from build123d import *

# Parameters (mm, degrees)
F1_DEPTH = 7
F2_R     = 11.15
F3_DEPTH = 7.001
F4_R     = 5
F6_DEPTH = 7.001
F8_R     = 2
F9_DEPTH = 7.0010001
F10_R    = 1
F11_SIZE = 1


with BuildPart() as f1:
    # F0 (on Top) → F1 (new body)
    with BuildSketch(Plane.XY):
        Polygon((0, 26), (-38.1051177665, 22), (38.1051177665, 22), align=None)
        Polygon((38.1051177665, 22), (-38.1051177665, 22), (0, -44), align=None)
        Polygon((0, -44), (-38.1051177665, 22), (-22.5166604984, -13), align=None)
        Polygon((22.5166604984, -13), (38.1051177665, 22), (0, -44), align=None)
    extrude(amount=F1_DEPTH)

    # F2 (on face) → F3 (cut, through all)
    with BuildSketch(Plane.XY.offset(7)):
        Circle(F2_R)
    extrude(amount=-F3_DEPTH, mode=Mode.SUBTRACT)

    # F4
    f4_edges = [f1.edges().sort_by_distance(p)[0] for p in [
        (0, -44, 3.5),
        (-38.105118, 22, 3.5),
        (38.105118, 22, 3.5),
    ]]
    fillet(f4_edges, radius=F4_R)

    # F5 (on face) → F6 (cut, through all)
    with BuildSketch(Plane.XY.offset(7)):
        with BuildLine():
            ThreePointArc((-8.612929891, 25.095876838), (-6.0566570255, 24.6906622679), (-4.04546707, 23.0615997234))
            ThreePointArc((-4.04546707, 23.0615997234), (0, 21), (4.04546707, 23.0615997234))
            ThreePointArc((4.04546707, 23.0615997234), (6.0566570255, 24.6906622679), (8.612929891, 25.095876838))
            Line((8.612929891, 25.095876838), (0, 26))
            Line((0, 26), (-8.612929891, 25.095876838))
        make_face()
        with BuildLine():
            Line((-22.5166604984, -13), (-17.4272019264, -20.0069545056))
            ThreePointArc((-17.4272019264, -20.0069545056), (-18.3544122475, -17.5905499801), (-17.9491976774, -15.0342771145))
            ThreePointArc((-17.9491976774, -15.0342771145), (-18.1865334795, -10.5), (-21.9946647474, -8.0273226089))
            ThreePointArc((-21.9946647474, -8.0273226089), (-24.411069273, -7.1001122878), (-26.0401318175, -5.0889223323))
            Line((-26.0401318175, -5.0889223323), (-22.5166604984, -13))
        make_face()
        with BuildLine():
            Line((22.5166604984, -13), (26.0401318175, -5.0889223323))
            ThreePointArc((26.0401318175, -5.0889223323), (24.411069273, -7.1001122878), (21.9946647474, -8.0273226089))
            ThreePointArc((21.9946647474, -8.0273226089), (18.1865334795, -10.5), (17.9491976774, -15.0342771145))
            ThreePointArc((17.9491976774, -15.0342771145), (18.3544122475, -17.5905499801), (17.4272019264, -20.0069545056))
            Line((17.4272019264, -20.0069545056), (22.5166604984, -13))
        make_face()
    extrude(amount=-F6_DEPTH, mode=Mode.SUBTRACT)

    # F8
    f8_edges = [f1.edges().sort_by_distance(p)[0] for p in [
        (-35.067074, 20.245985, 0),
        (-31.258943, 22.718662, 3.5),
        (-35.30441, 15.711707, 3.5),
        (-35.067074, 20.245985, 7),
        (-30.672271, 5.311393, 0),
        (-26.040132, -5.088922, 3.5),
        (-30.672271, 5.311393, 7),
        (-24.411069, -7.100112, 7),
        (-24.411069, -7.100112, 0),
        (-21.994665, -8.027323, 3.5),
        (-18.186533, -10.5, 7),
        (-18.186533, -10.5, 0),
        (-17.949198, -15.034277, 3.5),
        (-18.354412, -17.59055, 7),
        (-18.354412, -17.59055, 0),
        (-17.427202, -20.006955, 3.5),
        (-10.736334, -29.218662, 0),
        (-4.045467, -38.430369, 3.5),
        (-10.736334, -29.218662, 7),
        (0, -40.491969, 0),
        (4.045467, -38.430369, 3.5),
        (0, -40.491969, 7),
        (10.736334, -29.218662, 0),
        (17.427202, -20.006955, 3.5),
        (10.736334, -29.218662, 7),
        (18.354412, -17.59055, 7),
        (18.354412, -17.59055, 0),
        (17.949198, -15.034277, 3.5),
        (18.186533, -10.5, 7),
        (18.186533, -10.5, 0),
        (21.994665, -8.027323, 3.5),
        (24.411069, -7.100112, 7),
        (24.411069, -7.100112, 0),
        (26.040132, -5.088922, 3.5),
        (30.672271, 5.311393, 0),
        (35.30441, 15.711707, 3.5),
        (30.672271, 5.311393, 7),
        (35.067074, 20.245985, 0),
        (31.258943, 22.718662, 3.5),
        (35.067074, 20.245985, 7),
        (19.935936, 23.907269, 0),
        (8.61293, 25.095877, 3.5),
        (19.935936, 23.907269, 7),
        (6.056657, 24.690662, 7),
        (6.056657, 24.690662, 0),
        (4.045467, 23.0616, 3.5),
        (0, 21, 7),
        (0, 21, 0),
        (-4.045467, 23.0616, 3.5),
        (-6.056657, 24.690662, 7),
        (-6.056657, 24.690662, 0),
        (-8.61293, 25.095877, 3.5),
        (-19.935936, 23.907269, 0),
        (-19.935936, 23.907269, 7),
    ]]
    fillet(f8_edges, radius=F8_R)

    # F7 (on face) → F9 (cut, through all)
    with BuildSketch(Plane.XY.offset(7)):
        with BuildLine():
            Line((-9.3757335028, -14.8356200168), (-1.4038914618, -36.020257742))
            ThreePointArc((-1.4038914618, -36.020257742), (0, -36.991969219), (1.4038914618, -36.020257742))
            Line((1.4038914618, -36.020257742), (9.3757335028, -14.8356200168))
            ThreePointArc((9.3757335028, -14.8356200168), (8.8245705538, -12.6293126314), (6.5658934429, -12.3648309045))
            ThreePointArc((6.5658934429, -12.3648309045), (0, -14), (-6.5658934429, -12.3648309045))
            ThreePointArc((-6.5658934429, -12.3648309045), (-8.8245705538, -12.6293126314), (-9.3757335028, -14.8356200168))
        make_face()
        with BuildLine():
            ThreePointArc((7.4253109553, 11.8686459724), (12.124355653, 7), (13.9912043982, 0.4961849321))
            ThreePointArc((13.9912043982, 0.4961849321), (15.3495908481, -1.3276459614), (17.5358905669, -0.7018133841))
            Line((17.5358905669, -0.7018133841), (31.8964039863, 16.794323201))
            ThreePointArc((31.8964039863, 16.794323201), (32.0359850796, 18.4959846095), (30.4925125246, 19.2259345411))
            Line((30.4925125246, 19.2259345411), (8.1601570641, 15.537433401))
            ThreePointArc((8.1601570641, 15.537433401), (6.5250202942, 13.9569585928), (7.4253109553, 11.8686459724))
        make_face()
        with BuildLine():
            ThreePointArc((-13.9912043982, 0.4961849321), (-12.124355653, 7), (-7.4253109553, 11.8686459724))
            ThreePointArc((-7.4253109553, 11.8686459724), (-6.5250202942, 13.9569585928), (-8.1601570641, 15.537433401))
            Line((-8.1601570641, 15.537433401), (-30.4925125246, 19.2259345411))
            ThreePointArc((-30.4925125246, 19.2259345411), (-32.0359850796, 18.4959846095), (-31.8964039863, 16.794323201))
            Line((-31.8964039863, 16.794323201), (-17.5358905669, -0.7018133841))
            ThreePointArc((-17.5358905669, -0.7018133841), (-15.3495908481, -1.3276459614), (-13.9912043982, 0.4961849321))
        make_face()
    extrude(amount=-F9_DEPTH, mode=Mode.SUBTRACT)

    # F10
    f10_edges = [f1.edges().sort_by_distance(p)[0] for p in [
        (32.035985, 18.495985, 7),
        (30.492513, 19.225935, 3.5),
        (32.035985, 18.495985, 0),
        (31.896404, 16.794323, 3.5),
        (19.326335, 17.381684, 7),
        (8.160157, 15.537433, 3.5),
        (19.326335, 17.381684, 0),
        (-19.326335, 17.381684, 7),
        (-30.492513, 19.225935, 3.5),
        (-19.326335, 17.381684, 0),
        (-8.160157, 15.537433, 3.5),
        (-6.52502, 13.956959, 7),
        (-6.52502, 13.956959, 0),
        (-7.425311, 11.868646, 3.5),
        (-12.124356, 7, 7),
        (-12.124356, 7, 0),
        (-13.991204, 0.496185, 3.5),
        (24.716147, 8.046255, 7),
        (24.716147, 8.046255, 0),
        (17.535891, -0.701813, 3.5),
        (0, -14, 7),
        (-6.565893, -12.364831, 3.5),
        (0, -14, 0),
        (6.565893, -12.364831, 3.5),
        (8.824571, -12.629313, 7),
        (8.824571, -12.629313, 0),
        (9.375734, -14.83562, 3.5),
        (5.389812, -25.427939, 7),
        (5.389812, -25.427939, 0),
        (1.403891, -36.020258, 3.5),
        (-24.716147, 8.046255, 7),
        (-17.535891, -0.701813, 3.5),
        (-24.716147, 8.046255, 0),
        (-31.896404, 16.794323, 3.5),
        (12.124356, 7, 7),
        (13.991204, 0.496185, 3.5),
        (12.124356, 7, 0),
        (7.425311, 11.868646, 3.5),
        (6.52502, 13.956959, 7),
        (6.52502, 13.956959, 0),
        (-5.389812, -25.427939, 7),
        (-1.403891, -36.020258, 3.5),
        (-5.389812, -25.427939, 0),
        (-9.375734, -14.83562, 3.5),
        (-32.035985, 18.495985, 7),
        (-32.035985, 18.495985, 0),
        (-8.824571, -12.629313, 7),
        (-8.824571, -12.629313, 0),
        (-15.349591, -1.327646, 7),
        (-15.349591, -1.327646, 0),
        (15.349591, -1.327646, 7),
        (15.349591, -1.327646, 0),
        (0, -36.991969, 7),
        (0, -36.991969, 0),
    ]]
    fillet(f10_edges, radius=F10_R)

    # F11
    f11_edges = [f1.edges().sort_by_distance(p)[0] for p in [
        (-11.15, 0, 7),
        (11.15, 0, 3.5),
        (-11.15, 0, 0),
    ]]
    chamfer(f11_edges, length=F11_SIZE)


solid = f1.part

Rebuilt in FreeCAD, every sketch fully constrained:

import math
import FreeCAD as App
import Part
import Sketcher
Q = App.Units.Quantity


def edges_at(feature, points):
    """Names of the edges that pass closest to the given points."""
    edges = feature.Shape.Edges
    near = lambda p: min(range(len(edges)), key=lambda i: edges[i].distToShape(Part.Vertex(*p))[0])
    return sorted({f"Edge{near(p) + 1}" for p in points})


def add_polygon(sketch, points):
    """Adds a closed chain of lines whose ends are joined by coincident constraints."""
    first, n = sketch.GeometryCount, len(points)
    for a, b in zip(points, points[1:] + points[:1]):
        sketch.addGeometry(Part.LineSegment(App.Vector(*a, 0), App.Vector(*b, 0)), False)
    for i in range(n):
        sketch.addConstraint(Sketcher.Constraint("Coincident", first + i, 2, first + (i + 1) % n, 1))

doc = App.newDocument("Part")
body = doc.addObject("PartDesign::Body", "Body")

sketch1 = body.newObject("Sketcher::SketchObject", "Sketch")
sketch1.AttachmentSupport = (doc.getObject("XY_Plane"), [""])
sketch1.MapMode = "FlatFace"
add_polygon(sketch1, [(0, 26), (-38, 22), (-23, -13), (0, -44), (23, -13), (38, 22)])
sketch1.addConstraint(Sketcher.Constraint("Symmetric", 1, 2, 3, 2, -2))
sketch1.addConstraint(Sketcher.Constraint("Symmetric", 0, 2, 4, 2, -2))
sketch1.addConstraint(Sketcher.Constraint("PointOnObject", 2, 2, -2))
sketch1.addConstraint(Sketcher.Constraint("PointOnObject", 5, 2, -2))
sketch1.addConstraint(Sketcher.Constraint("Equal", 0, 1))
sketch1.addConstraint(Sketcher.Constraint("Equal", 1, 2))
sketch1.addConstraint(Sketcher.Constraint("DistanceY", -1, 1, 0, 2, Q("22 mm")))
sketch1.addConstraint(Sketcher.Constraint("DistanceY", 1, 2, -1, 1, Q("13 mm")))
sketch1.addConstraint(Sketcher.Constraint("DistanceY", 2, 2, -1, 1, Q("44 mm")))
sketch1.addConstraint(Sketcher.Constraint("DistanceY", -1, 1, 5, 2, Q("26 mm")))
pad1 = body.newObject("PartDesign::Pad", "Pad")
pad1.Profile = sketch1
pad1.Length = 7

sketch2 = body.newObject("Sketcher::SketchObject", "Sketch001")
sketch2.AttachmentSupport = (doc.getObject("XY_Plane"), [""])
sketch2.MapMode = "FlatFace"
sketch2.AttachmentOffset = App.Placement(App.Vector(0, 0, 7), App.Rotation())
sketch2.addGeometry(Part.Circle(App.Vector(0, 0, 0), App.Vector(0, 0, 1), 11), False)
sketch2.addConstraint(Sketcher.Constraint("Coincident", 0, 3, -1, 1))
sketch2.addConstraint(Sketcher.Constraint("Diameter", 0, Q("22.3 mm")))
pocket1 = body.newObject("PartDesign::Pocket", "Pocket")
pocket1.Profile = sketch2
pocket1.Type = "ThroughAll"
doc.recompute()

fillet = body.newObject("PartDesign::Fillet", "Fillet")
fillet.Base = (pocket1, edges_at(pocket1, [(0, -44, 3.5), (-38.105, 22, 3.5), (38.105, 22, 3.5)]))
fillet.Radius = 5

sketch3 = body.newObject("Sketcher::SketchObject", "Sketch002")
sketch3.AttachmentSupport = (doc.getObject("XY_Plane"), [""])
sketch3.MapMode = "FlatFace"
sketch3.AttachmentOffset = App.Placement(App.Vector(0, 0, 7), App.Rotation())
sketch3.addGeometry(Part.ArcOfCircle(Part.Circle(App.Vector(-8.1, 20.1, 0), App.Vector(0, 0, 1), 5), math.radians(36), math.radians(96)), False)
sketch3.addGeometry(Part.ArcOfCircle(Part.Circle(App.Vector(0, 26, 0), App.Vector(0, 0, 1), 5), math.radians(-144), math.radians(-36)), False)
sketch3.addGeometry(Part.ArcOfCircle(Part.Circle(App.Vector(8.1, 20.1, 0), App.Vector(0, 0, 1), 5), math.radians(84), math.radians(144)), False)
sketch3.addGeometry(Part.LineSegment(App.Vector(8.6, 25.1, 0), App.Vector(0, 26, 0)), False)
sketch3.addGeometry(Part.LineSegment(App.Vector(0, 26, 0), App.Vector(-8.6, 25.1, 0)), False)
sketch3.addGeometry(Part.LineSegment(App.Vector(-22.5, -13, 0), App.Vector(-17.4, -20, 0)), False)
sketch3.addGeometry(Part.ArcOfCircle(Part.Circle(App.Vector(-13.4, -17.1, 0), App.Vector(0, 0, 1), 5), math.radians(156), math.radians(216)), False)
sketch3.addGeometry(Part.ArcOfCircle(Part.Circle(App.Vector(-22.5, -13, 0), App.Vector(0, 0, 1), 5), math.radians(-24), math.radians(84)), False)
sketch3.addGeometry(Part.ArcOfCircle(Part.Circle(App.Vector(-21.5, -3.1, 0), App.Vector(0, 0, 1), 5), math.radians(-156), math.radians(-96)), False)
sketch3.addGeometry(Part.LineSegment(App.Vector(-26, -5.1, 0), App.Vector(-22.5, -13, 0)), False)
sketch3.addGeometry(Part.LineSegment(App.Vector(22.5, -13, 0), App.Vector(26, -5.1, 0)), False)
sketch3.addGeometry(Part.ArcOfCircle(Part.Circle(App.Vector(21.5, -3.1, 0), App.Vector(0, 0, 1), 5), math.radians(-84), math.radians(-24)), False)
sketch3.addGeometry(Part.ArcOfCircle(Part.Circle(App.Vector(22.5, -13, 0), App.Vector(0, 0, 1), 5), math.radians(96), math.radians(204)), False)
sketch3.addGeometry(Part.ArcOfCircle(Part.Circle(App.Vector(13.4, -17.1, 0), App.Vector(0, 0, 1), 5), math.radians(-36), math.radians(24)), False)
sketch3.addGeometry(Part.LineSegment(App.Vector(17.4, -20, 0), App.Vector(22.5, -13, 0)), False)
sketch3.addConstraint(Sketcher.Constraint("Tangent", 0, 1, 1, 1))
sketch3.addConstraint(Sketcher.Constraint("Tangent", 1, 2, 2, 2))
sketch3.addConstraint(Sketcher.Constraint("Tangent", 2, 1, 3, 1))
sketch3.addConstraint(Sketcher.Constraint("Coincident", 3, 2, 4, 1))
sketch3.addConstraint(Sketcher.Constraint("Tangent", 4, 2, 0, 2))
sketch3.addConstraint(Sketcher.Constraint("Tangent", 5, 2, 6, 2))
sketch3.addConstraint(Sketcher.Constraint("Tangent", 6, 1, 7, 1))
sketch3.addConstraint(Sketcher.Constraint("Tangent", 7, 2, 8, 2))
sketch3.addConstraint(Sketcher.Constraint("Tangent", 8, 1, 9, 1))
sketch3.addConstraint(Sketcher.Constraint("Coincident", 9, 2, 5, 1))
sketch3.addConstraint(Sketcher.Constraint("Tangent", 10, 2, 11, 2))
sketch3.addConstraint(Sketcher.Constraint("Tangent", 11, 1, 12, 1))
sketch3.addConstraint(Sketcher.Constraint("Tangent", 12, 2, 13, 2))
sketch3.addConstraint(Sketcher.Constraint("Tangent", 13, 1, 14, 1))
sketch3.addConstraint(Sketcher.Constraint("Coincident", 14, 2, 10, 1))
sketch3.addConstraint(Sketcher.Constraint("Coincident", 3, 2, 1, 3))
sketch3.addConstraint(Sketcher.Constraint("Coincident", 9, 2, 7, 3))
sketch3.addConstraint(Sketcher.Constraint("Coincident", 14, 2, 12, 3))
sketch3.addConstraint(Sketcher.Constraint("Equal", 0, 1))
sketch3.addConstraint(Sketcher.Constraint("Equal", 1, 2))
sketch3.addConstraint(Sketcher.Constraint("Equal", 2, 6))
sketch3.addConstraint(Sketcher.Constraint("Equal", 6, 7))
sketch3.addConstraint(Sketcher.Constraint("Equal", 7, 8))
sketch3.addConstraint(Sketcher.Constraint("Equal", 8, 11))
sketch3.addConstraint(Sketcher.Constraint("Equal", 11, 12))
sketch3.addConstraint(Sketcher.Constraint("Equal", 12, 13))
sketch3.addConstraint(Sketcher.Constraint("Symmetric", 0, 3, 2, 3, -2))
sketch3.addConstraint(Sketcher.Constraint("Symmetric", 8, 3, 11, 3, -2))
sketch3.addConstraint(Sketcher.Constraint("Symmetric", 6, 3, 13, 3, -2))
sketch3.addConstraint(Sketcher.Constraint("Radius", 0, Q("5 mm")))
sketch3.addConstraint(Sketcher.Constraint("DistanceY", -1, 1, 1, 3, Q("26 mm")))
sketch3.addConstraint(Sketcher.Constraint("DistanceY", 7, 3, -1, 1, Q("13 mm")))
sketch3.addConstraint(Sketcher.Constraint("DistanceY", -1, 1, 0, 3, Q("20.123199 mm")))
sketch3.addConstraint(Sketcher.Constraint("DistanceX", 5, 2, -1, 1, Q("17.427202 mm")))
sketch3.addConstraint(Sketcher.Constraint("DistanceX", 6, 3, 0, 3, Q("5.290801 mm")))
sketch3.addConstraint(Sketcher.Constraint("DistanceX", 8, 3, 0, 1, Q("17.427202 mm")))
pocket2 = body.newObject("PartDesign::Pocket", "Pocket001")
pocket2.Profile = sketch3
pocket2.Type = "ThroughAll"
doc.recompute()

fillet2 = body.newObject("PartDesign::Fillet", "Fillet001")
fillet2.Base = (pocket2, edges_at(pocket2, [
    (-35.067, 20.246, 0),
    (-31.259, 22.719, 3.5),
    (-35.304, 15.712, 3.5),
    (-35.067, 20.246, 7),
    (-30.672, 5.311, 0),
    (-26.04, -5.089, 3.5),
    (-30.672, 5.311, 7),
    (-24.411, -7.1, 7),
    (-24.411, -7.1, 0),
    (-21.995, -8.027, 3.5),
    (-18.187, -10.5, 7),
    (-18.187, -10.5, 0),
    (-17.949, -15.034, 3.5),
    (-18.354, -17.591, 7),
    (-18.354, -17.591, 0),
    (-17.427, -20.007, 3.5),
    (-10.736, -29.219, 0),
    (-4.045, -38.43, 3.5),
    (-10.736, -29.219, 7),
    (0, -40.492, 0),
    (4.045, -38.43, 3.5),
    (0, -40.492, 7),
    (10.736, -29.219, 0),
    (17.427, -20.007, 3.5),
    (10.736, -29.219, 7),
    (18.354, -17.591, 7),
    (18.354, -17.591, 0),
    (17.949, -15.034, 3.5),
    (18.187, -10.5, 7),
    (18.187, -10.5, 0),
    (21.995, -8.027, 3.5),
    (24.411, -7.1, 7),
    (24.411, -7.1, 0),
    (26.04, -5.089, 3.5),
    (30.672, 5.311, 0),
    (35.304, 15.712, 3.5),
    (30.672, 5.311, 7),
    (35.067, 20.246, 0),
    (31.259, 22.719, 3.5),
    (35.067, 20.246, 7),
    (19.936, 23.907, 0),
    (8.613, 25.096, 3.5),
    (19.936, 23.907, 7),
    (6.057, 24.691, 7),
    (6.057, 24.691, 0),
    (4.045, 23.062, 3.5),
    (0, 21, 7),
    (0, 21, 0),
    (-4.045, 23.062, 3.5),
    (-6.057, 24.691, 7),
    (-6.057, 24.691, 0),
    (-8.613, 25.096, 3.5),
    (-19.936, 23.907, 0),
    (-19.936, 23.907, 7),
]))
fillet2.Radius = 2

sketch4 = body.newObject("Sketcher::SketchObject", "Sketch003")
sketch4.AttachmentSupport = (doc.getObject("XY_Plane"), [""])
sketch4.MapMode = "FlatFace"
sketch4.AttachmentOffset = App.Placement(App.Vector(0, 0, 7), App.Rotation())
sketch4.addGeometry(Part.LineSegment(App.Vector(-9.4, -14.8, 0), App.Vector(-1.4, -36, 0)), False)
sketch4.addGeometry(Part.ArcOfCircle(Part.Circle(App.Vector(0, -35.5, 0), App.Vector(0, 0, 1), 1.5), math.radians(-159), math.radians(-21)), False)
sketch4.addGeometry(Part.LineSegment(App.Vector(1.4, -36, 0), App.Vector(9.4, -14.8, 0)), False)
sketch4.addGeometry(Part.ArcOfCircle(Part.Circle(App.Vector(7.5, -14.1, 0), App.Vector(0, 0, 1), 2), math.radians(-21), math.radians(118)), False)
sketch4.addGeometry(Part.ArcOfCircle(Part.Circle(App.Vector(0, 0, 0), App.Vector(0, 0, 1), 14), math.radians(-118), math.radians(-62)), False)
sketch4.addGeometry(Part.ArcOfCircle(Part.Circle(App.Vector(-7.5, -14.1, 0), App.Vector(0, 0, 1), 2), math.radians(62), math.radians(201)), False)
sketch4.addGeometry(Part.ArcOfCircle(Part.Circle(App.Vector(0, 0, 0), App.Vector(0, 0, 1), 14), math.radians(2), math.radians(58)), False)
sketch4.addGeometry(Part.ArcOfCircle(Part.Circle(App.Vector(16, 0.6, 0), App.Vector(0, 0, 1), 2), math.radians(-178), math.radians(-39)), False)
sketch4.addGeometry(Part.LineSegment(App.Vector(17.5, -0.7, 0), App.Vector(31.9, 16.8, 0)), False)
sketch4.addGeometry(Part.ArcOfCircle(Part.Circle(App.Vector(30.7, 17.7, 0), App.Vector(0, 0, 1), 1.5), math.radians(-39), math.radians(99)), False)
sketch4.addGeometry(Part.LineSegment(App.Vector(30.5, 19.2, 0), App.Vector(8.2, 15.5, 0)), False)
sketch4.addGeometry(Part.ArcOfCircle(Part.Circle(App.Vector(8.5, 13.6, 0), App.Vector(0, 0, 1), 2), math.radians(99), math.radians(238)), False)
sketch4.addGeometry(Part.ArcOfCircle(Part.Circle(App.Vector(0, 0, 0), App.Vector(0, 0, 1), 14), math.radians(122), math.radians(178)), False)
sketch4.addGeometry(Part.ArcOfCircle(Part.Circle(App.Vector(-8.5, 13.6, 0), App.Vector(0, 0, 1), 2), math.radians(-58), math.radians(81)), False)
sketch4.addGeometry(Part.LineSegment(App.Vector(-8.2, 15.5, 0), App.Vector(-30.5, 19.2, 0)), False)
sketch4.addGeometry(Part.ArcOfCircle(Part.Circle(App.Vector(-30.7, 17.7, 0), App.Vector(0, 0, 1), 1.5), math.radians(81), math.radians(219)), False)
sketch4.addGeometry(Part.LineSegment(App.Vector(-31.9, 16.8, 0), App.Vector(-17.5, -0.7, 0)), False)
sketch4.addGeometry(Part.ArcOfCircle(Part.Circle(App.Vector(-16, 0.6, 0), App.Vector(0, 0, 1), 2), math.radians(-141), math.radians(-2)), False)
sketch4.addConstraint(Sketcher.Constraint("Tangent", 0, 2, 1, 1))
sketch4.addConstraint(Sketcher.Constraint("Tangent", 1, 2, 2, 1))
sketch4.addConstraint(Sketcher.Constraint("Tangent", 2, 2, 3, 1))
sketch4.addConstraint(Sketcher.Constraint("Tangent", 3, 2, 4, 2))
sketch4.addConstraint(Sketcher.Constraint("Tangent", 4, 1, 5, 1))
sketch4.addConstraint(Sketcher.Constraint("Tangent", 5, 2, 0, 1))
sketch4.addConstraint(Sketcher.Constraint("Tangent", 6, 1, 7, 1))
sketch4.addConstraint(Sketcher.Constraint("Tangent", 7, 2, 8, 1))
sketch4.addConstraint(Sketcher.Constraint("Tangent", 8, 2, 9, 1))
sketch4.addConstraint(Sketcher.Constraint("Tangent", 9, 2, 10, 1))
sketch4.addConstraint(Sketcher.Constraint("Tangent", 10, 2, 11, 1))
sketch4.addConstraint(Sketcher.Constraint("Tangent", 11, 2, 6, 2))
sketch4.addConstraint(Sketcher.Constraint("Tangent", 12, 1, 13, 1))
sketch4.addConstraint(Sketcher.Constraint("Tangent", 13, 2, 14, 1))
sketch4.addConstraint(Sketcher.Constraint("Tangent", 14, 2, 15, 1))
sketch4.addConstraint(Sketcher.Constraint("Tangent", 15, 2, 16, 1))
sketch4.addConstraint(Sketcher.Constraint("Tangent", 16, 2, 17, 1))
sketch4.addConstraint(Sketcher.Constraint("Tangent", 17, 2, 12, 2))
sketch4.addConstraint(Sketcher.Constraint("Coincident", 4, 3, -1, 1))
sketch4.addConstraint(Sketcher.Constraint("Coincident", 6, 3, -1, 1))
sketch4.addConstraint(Sketcher.Constraint("Coincident", 12, 3, -1, 1))
sketch4.addConstraint(Sketcher.Constraint("Equal", 3, 5))
sketch4.addConstraint(Sketcher.Constraint("Equal", 4, 6))
sketch4.addConstraint(Sketcher.Constraint("Equal", 5, 7))
sketch4.addConstraint(Sketcher.Constraint("Equal", 1, 9))
sketch4.addConstraint(Sketcher.Constraint("Equal", 7, 11))
sketch4.addConstraint(Sketcher.Constraint("Equal", 6, 12))
sketch4.addConstraint(Sketcher.Constraint("Equal", 11, 13))
sketch4.addConstraint(Sketcher.Constraint("Equal", 9, 15))
sketch4.addConstraint(Sketcher.Constraint("Equal", 13, 17))
sketch4.addConstraint(Sketcher.Constraint("Symmetric", 9, 3, 15, 3, -2))
sketch4.addConstraint(Sketcher.Constraint("Symmetric", 0, 2, 1, 2, -2))
sketch4.addConstraint(Sketcher.Constraint("Horizontal", 11, 3, 13, 3))
sketch4.addConstraint(Sketcher.Constraint("Horizontal", 7, 3, 17, 3))
sketch4.addConstraint(Sketcher.Constraint("Equal", 2, 8))
sketch4.addConstraint(Sketcher.Constraint("Equal", 8, 10))
sketch4.addConstraint(Sketcher.Constraint("Radius", 3, Q("2 mm")))
sketch4.addConstraint(Sketcher.Constraint("Radius", 4, Q("14 mm")))
sketch4.addConstraint(Sketcher.Constraint("Radius", 1, Q("1.5 mm")))
sketch4.addConstraint(Sketcher.Constraint("DistanceX", 7, 3, 9, 3, Q("14.746999 mm")))
sketch4.addConstraint(Sketcher.Constraint("DistanceY", 7, 2, 6, 1, Q("1.197998 mm")))
sketch4.addConstraint(Sketcher.Constraint("DistanceY", 7, 3, 11, 3, Q("12.997098 mm")))
sketch4.addConstraint(Sketcher.Constraint("DistanceY", 1, 3, -1, 1, Q("35.491969 mm")))
pocket3 = body.newObject("PartDesign::Pocket", "Pocket002")
pocket3.Profile = sketch4
pocket3.Type = "ThroughAll"
doc.recompute()

fillet3 = body.newObject("PartDesign::Fillet", "Fillet002")
fillet3.Base = (pocket3, edges_at(pocket3, [
    (32.036, 18.496, 7),
    (30.493, 19.226, 3.5),
    (32.036, 18.496, 0),
    (31.896, 16.794, 3.5),
    (19.326, 17.382, 7),
    (8.16, 15.537, 3.5),
    (19.326, 17.382, 0),
    (-19.326, 17.382, 7),
    (-30.493, 19.226, 3.5),
    (-19.326, 17.382, 0),
    (-8.16, 15.537, 3.5),
    (-6.525, 13.957, 7),
    (-6.525, 13.957, 0),
    (-7.425, 11.869, 3.5),
    (-12.124, 7, 7),
    (-12.124, 7, 0),
    (-13.991, 0.496, 3.5),
    (24.716, 8.046, 7),
    (24.716, 8.046, 0),
    (17.536, -0.702, 3.5),
    (0, -14, 7),
    (-6.566, -12.365, 3.5),
    (0, -14, 0),
    (6.566, -12.365, 3.5),
    (8.825, -12.629, 7),
    (8.825, -12.629, 0),
    (9.376, -14.836, 3.5),
    (5.39, -25.428, 7),
    (5.39, -25.428, 0),
    (1.404, -36.02, 3.5),
    (-24.716, 8.046, 7),
    (-17.536, -0.702, 3.5),
    (-24.716, 8.046, 0),
    (-31.896, 16.794, 3.5),
    (12.124, 7, 7),
    (13.991, 0.496, 3.5),
    (12.124, 7, 0),
    (7.425, 11.869, 3.5),
    (6.525, 13.957, 7),
    (6.525, 13.957, 0),
    (-5.39, -25.428, 7),
    (-1.404, -36.02, 3.5),
    (-5.39, -25.428, 0),
    (-9.376, -14.836, 3.5),
    (-32.036, 18.496, 7),
    (-32.036, 18.496, 0),
    (-8.825, -12.629, 7),
    (-8.825, -12.629, 0),
    (-15.35, -1.328, 7),
    (-15.35, -1.328, 0),
    (15.35, -1.328, 7),
    (15.35, -1.328, 0),
    (0, -36.992, 7),
    (0, -36.992, 0),
]))
fillet3.Radius = 1
doc.recompute()

chamfer = body.newObject("PartDesign::Chamfer", "Chamfer")
chamfer.Base = (fillet3, edges_at(fillet3, [(-11.15, 0, 7), (11.15, 0, 3.5), (-11.15, 0, 0)]))
chamfer.Size = 1

doc.recompute()
